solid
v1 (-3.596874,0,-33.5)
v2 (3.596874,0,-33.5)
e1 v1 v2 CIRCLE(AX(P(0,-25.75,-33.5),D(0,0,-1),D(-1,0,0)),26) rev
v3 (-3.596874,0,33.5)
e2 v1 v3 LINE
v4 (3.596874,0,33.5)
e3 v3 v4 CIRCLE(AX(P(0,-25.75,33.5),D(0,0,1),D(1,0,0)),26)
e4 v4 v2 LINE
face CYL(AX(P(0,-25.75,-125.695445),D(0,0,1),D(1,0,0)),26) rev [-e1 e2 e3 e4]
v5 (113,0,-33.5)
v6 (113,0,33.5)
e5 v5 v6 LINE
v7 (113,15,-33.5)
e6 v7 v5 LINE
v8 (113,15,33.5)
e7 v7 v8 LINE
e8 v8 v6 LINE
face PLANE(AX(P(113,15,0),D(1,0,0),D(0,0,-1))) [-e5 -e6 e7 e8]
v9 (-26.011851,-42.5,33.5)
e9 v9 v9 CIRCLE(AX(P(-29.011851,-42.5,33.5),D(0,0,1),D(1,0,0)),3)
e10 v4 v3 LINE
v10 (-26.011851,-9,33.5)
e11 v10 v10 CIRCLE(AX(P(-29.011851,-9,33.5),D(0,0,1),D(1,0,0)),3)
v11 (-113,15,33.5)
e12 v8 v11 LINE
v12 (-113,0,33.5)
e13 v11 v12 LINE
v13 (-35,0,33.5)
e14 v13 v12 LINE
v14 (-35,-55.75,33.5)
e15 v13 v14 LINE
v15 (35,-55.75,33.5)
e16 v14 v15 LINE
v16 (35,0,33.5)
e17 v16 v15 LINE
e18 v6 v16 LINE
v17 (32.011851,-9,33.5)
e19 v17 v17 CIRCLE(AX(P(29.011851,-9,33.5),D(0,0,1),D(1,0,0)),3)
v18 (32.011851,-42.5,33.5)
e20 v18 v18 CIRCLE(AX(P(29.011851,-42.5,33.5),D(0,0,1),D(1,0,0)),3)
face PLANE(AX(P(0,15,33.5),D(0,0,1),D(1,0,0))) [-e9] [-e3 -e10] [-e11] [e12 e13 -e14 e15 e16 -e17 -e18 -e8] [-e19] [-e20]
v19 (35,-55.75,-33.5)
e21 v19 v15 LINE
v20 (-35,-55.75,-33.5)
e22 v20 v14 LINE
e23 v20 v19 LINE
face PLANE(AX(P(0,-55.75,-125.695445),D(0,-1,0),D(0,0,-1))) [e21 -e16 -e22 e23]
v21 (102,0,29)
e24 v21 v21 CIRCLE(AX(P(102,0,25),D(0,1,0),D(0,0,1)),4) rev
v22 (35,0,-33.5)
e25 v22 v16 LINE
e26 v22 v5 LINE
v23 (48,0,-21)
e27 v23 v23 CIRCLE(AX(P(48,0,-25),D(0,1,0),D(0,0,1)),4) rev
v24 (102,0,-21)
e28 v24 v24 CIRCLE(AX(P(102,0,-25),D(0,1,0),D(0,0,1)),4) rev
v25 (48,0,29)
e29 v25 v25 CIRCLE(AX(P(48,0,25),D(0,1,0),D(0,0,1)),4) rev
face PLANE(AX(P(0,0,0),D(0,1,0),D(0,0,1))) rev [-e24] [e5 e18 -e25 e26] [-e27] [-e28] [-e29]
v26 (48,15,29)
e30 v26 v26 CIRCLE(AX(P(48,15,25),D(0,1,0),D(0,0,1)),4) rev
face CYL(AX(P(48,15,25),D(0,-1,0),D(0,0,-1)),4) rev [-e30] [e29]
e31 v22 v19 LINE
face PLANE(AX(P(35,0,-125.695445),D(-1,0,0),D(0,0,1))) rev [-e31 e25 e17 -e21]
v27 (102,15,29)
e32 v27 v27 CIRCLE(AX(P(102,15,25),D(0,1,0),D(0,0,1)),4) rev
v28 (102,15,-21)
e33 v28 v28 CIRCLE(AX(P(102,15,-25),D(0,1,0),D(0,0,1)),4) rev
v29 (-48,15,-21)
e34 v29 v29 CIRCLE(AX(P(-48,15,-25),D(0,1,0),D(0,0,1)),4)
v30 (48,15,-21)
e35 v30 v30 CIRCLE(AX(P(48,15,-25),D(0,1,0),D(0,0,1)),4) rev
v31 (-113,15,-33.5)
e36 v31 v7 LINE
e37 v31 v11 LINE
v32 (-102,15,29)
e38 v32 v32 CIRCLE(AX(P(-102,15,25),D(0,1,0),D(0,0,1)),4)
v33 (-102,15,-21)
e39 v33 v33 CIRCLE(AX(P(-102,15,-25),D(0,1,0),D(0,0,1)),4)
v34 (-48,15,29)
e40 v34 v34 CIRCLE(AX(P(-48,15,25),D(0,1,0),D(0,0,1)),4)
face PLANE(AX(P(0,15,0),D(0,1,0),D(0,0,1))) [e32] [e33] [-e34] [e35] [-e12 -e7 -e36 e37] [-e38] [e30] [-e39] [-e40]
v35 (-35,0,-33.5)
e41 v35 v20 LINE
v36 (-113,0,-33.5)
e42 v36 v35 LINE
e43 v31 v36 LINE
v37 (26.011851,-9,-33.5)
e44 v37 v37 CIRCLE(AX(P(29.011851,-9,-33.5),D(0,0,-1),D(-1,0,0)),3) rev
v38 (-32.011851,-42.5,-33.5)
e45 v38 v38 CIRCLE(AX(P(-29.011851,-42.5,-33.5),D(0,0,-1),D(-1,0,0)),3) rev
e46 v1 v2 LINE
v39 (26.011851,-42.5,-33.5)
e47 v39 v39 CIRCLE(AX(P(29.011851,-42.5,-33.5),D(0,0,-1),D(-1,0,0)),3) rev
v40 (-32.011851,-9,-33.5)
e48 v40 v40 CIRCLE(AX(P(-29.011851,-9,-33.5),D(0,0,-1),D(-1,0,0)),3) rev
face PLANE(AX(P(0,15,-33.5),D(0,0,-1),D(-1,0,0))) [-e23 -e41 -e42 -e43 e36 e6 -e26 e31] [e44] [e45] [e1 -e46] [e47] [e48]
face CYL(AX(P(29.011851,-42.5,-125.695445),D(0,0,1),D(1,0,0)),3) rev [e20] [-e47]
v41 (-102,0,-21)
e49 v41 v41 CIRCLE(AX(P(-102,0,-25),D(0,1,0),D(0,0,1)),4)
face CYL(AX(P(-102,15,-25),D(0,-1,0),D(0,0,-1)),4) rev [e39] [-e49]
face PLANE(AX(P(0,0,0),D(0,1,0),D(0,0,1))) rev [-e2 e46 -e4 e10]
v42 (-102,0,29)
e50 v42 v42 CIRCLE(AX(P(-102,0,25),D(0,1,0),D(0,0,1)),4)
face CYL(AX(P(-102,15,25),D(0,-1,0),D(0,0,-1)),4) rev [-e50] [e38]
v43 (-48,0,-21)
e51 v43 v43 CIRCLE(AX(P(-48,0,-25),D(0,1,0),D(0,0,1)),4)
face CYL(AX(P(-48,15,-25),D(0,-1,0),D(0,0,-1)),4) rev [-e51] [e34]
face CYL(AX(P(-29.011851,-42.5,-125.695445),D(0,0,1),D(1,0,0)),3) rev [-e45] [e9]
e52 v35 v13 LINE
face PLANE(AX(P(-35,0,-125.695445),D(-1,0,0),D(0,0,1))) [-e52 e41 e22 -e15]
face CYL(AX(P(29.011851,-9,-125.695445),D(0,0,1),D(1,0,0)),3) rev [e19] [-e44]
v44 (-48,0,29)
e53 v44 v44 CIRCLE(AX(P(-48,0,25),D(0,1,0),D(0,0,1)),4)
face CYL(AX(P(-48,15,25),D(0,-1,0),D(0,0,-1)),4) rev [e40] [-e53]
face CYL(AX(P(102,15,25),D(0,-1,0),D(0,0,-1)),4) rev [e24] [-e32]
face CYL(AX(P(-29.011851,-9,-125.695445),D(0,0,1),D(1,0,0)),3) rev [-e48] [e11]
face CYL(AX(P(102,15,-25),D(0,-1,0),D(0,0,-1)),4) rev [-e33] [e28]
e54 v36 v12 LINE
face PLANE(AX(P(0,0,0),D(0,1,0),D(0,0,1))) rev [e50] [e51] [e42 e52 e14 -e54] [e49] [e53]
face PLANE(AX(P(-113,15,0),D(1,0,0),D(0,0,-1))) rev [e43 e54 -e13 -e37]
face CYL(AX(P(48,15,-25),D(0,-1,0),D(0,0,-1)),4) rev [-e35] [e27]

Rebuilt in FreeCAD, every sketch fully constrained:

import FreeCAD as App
import Part
import Sketcher


def add_polygon(sketch, points):
    """Adds a closed chain of lines whose ends are joined by coincident constraints."""
    first, n = sketch.GeometryCount, len(points)
    for a, b in zip(points, points[1:] + points[:1]):
        sketch.addGeometry(Part.LineSegment(App.Vector(*a, 0), App.Vector(*b, 0)), False)
    for i in range(n):
        sketch.addConstraint(Sketcher.Constraint("Coincident", first + i, 2, first + (i + 1) % n, 1))

doc = App.newDocument("Part")
body = doc.addObject("PartDesign::Body", "Body")

# Sketch on XZ plane
sketch1 = body.newObject("Sketcher::SketchObject", "Sketch")
sketch1.AttachmentSupport = (doc.getObject("XZ_Plane"), [""])
sketch1.MapMode = "FlatFace"
add_polygon(sketch1, [(-113, -33.5), (-113, 33.5), (113, 33.5), (113, -33.5)])  # lines 0-3
sketch1.addGeometry(Part.Circle(App.Vector(-102, 25, 0), App.Vector(0, 0, 1), 4), False)  # 4
sketch1.addGeometry(Part.Circle(App.Vector(-48, 25, 0), App.Vector(0, 0, 1), 4), False)  # 5
sketch1.addGeometry(Part.Circle(App.Vector(48, 25, 0), App.Vector(0, 0, 1), 4), False)  # 6
sketch1.addGeometry(Part.Circle(App.Vector(102, 25, 0), App.Vector(0, 0, 1), 4), False)  # 7
sketch1.addGeometry(Part.Circle(App.Vector(-102, -25, 0), App.Vector(0, 0, 1), 4), False)  # 8
sketch1.addGeometry(Part.Circle(App.Vector(-48, -25, 0), App.Vector(0, 0, 1), 4), False)  # 9
sketch1.addGeometry(Part.Circle(App.Vector(48, -25, 0), App.Vector(0, 0, 1), 4), False)  # 10
sketch1.addGeometry(Part.Circle(App.Vector(102, -25, 0), App.Vector(0, 0, 1), 4), False)  # 11
sketch1.addConstraint([
    Sketcher.Constraint("Vertical", 0),
    Sketcher.Constraint("Horizontal", 1),
    Sketcher.Constraint("Vertical", 2),
    Sketcher.Constraint("Horizontal", 3),
    Sketcher.Constraint("Equal", 4, 5),
    Sketcher.Constraint("Equal", 5, 6),
    Sketcher.Constraint("Equal", 6, 7),
    Sketcher.Constraint("Equal", 7, 8),
    Sketcher.Constraint("Equal", 8, 9),
    Sketcher.Constraint("Equal", 9, 10),
    Sketcher.Constraint("Equal", 10, 11),
    Sketcher.Constraint("Symmetric", 7, 3, 8, 3, -1, 1),
    Sketcher.Constraint("Symmetric", 6, 3, 9, 3, -1, 1),
    Sketcher.Constraint("Symmetric", 5, 3, 10, 3, -1, 1),
    Sketcher.Constraint("Symmetric", 4, 3, 11, 3, -1, 1),
    Sketcher.Constraint("Symmetric", 0, 2, 2, 2, -1, 1),
    Sketcher.Constraint("Symmetric", 5, 3, 6, 3, -2),
    Sketcher.Constraint("Symmetric", 4, 3, 7, 3, -2),
    Sketcher.Constraint("Horizontal", 4, 3, 5, 3),
    Sketcher.Constraint("Diameter", 4, 8.0),
    Sketcher.Constraint("DistanceX", 1, 1, 1, 2, 226.0),
    Sketcher.Constraint("DistanceY", 0, 1, 0, 2, 67.0),
    Sketcher.Constraint("DistanceX", 4, 3, -1, 1, 102.0),
    Sketcher.Constraint("DistanceY", -1, 1, 4, 3, 25.0),
    Sketcher.Constraint("DistanceX", 5, 3, -1, 1, 48.0),
])
pad1 = body.newObject("PartDesign::Pad", "Pad")
pad1.Profile = sketch1
pad1.Length = 15
pad1.Reversed = True

# Sketch on XY plane
sketch2 = body.newObject("Sketcher::SketchObject", "Sketch001")
sketch2.AttachmentSupport = (doc.getObject("XY_Plane"), [""])
sketch2.MapMode = "FlatFace"
sketch2.AttachmentOffset = App.Placement(App.Vector(0, 0, 33.5), App.Rotation())
add_polygon(sketch2, [(-35, 4.2), (-35, -55.8), (35, -55.8), (35, 4.2)])  # lines 0-3
sketch2.addGeometry(Part.Circle(App.Vector(-29, -42.5, 0), App.Vector(0, 0, 1), 3), False)  # 4
sketch2.addGeometry(Part.Circle(App.Vector(29, -42.5, 0), App.Vector(0, 0, 1), 3), False)  # 5
sketch2.addGeometry(Part.Circle(App.Vector(-29, -9, 0), App.Vector(0, 0, 1), 3), False)  # 6
sketch2.addGeometry(Part.Circle(App.Vector(0, -25.8, 0), App.Vector(0, 0, 1), 26), False)  # 7
sketch2.addGeometry(Part.Circle(App.Vector(29, -9, 0), App.Vector(0, 0, 1), 3), False)  # 8
sketch2.addConstraint([
    Sketcher.Constraint("Vertical", 0),
    Sketcher.Constraint("Horizontal", 1),
    Sketcher.Constraint("Vertical", 2),
    Sketcher.Constraint("Horizontal", 3),
    Sketcher.Constraint("Equal", 4, 5),
    Sketcher.Constraint("Equal", 5, 6),
    Sketcher.Constraint("Equal", 6, 8),
    Sketcher.Constraint("Symmetric", 4, 3, 5, 3, -2),
    Sketcher.Constraint("Symmetric", 6, 3, 8, 3, -2),
    Sketcher.Constraint("PointOnObject", 7, 3, -2),
    Sketcher.Constraint("Vertical", 4, 3, 6, 3),
    Sketcher.Constraint("Diameter", 4, 6.0),
    Sketcher.Constraint("Diameter", 7, 52.0),
    Sketcher.Constraint("DistanceX", 1, 1, 1, 2, 70.0),
    Sketcher.Constraint("DistanceY", 0, 2, 0, 1, 60.0),
    Sketcher.Constraint("DistanceY", 6, 3, -1, 1, 9.0),
    Sketcher.Constraint("DistanceX", 0, 2, -1, 1, 35.0),
    Sketcher.Constraint("DistanceY", 0, 2, 7, 3, 30.0),
    Sketcher.Constraint("DistanceY", 4, 3, -1, 1, 42.5),
    Sketcher.Constraint("DistanceY", 7, 3, -1, 1, 25.75),
    Sketcher.Constraint("DistanceX", 4, 3, -1, 1, 29.011851),
])
pad2 = body.newObject("PartDesign::Pad", "Pad001")
pad2.Profile = sketch2
pad2.Length = 67
pad2.Reversed = True

doc.recompute()
